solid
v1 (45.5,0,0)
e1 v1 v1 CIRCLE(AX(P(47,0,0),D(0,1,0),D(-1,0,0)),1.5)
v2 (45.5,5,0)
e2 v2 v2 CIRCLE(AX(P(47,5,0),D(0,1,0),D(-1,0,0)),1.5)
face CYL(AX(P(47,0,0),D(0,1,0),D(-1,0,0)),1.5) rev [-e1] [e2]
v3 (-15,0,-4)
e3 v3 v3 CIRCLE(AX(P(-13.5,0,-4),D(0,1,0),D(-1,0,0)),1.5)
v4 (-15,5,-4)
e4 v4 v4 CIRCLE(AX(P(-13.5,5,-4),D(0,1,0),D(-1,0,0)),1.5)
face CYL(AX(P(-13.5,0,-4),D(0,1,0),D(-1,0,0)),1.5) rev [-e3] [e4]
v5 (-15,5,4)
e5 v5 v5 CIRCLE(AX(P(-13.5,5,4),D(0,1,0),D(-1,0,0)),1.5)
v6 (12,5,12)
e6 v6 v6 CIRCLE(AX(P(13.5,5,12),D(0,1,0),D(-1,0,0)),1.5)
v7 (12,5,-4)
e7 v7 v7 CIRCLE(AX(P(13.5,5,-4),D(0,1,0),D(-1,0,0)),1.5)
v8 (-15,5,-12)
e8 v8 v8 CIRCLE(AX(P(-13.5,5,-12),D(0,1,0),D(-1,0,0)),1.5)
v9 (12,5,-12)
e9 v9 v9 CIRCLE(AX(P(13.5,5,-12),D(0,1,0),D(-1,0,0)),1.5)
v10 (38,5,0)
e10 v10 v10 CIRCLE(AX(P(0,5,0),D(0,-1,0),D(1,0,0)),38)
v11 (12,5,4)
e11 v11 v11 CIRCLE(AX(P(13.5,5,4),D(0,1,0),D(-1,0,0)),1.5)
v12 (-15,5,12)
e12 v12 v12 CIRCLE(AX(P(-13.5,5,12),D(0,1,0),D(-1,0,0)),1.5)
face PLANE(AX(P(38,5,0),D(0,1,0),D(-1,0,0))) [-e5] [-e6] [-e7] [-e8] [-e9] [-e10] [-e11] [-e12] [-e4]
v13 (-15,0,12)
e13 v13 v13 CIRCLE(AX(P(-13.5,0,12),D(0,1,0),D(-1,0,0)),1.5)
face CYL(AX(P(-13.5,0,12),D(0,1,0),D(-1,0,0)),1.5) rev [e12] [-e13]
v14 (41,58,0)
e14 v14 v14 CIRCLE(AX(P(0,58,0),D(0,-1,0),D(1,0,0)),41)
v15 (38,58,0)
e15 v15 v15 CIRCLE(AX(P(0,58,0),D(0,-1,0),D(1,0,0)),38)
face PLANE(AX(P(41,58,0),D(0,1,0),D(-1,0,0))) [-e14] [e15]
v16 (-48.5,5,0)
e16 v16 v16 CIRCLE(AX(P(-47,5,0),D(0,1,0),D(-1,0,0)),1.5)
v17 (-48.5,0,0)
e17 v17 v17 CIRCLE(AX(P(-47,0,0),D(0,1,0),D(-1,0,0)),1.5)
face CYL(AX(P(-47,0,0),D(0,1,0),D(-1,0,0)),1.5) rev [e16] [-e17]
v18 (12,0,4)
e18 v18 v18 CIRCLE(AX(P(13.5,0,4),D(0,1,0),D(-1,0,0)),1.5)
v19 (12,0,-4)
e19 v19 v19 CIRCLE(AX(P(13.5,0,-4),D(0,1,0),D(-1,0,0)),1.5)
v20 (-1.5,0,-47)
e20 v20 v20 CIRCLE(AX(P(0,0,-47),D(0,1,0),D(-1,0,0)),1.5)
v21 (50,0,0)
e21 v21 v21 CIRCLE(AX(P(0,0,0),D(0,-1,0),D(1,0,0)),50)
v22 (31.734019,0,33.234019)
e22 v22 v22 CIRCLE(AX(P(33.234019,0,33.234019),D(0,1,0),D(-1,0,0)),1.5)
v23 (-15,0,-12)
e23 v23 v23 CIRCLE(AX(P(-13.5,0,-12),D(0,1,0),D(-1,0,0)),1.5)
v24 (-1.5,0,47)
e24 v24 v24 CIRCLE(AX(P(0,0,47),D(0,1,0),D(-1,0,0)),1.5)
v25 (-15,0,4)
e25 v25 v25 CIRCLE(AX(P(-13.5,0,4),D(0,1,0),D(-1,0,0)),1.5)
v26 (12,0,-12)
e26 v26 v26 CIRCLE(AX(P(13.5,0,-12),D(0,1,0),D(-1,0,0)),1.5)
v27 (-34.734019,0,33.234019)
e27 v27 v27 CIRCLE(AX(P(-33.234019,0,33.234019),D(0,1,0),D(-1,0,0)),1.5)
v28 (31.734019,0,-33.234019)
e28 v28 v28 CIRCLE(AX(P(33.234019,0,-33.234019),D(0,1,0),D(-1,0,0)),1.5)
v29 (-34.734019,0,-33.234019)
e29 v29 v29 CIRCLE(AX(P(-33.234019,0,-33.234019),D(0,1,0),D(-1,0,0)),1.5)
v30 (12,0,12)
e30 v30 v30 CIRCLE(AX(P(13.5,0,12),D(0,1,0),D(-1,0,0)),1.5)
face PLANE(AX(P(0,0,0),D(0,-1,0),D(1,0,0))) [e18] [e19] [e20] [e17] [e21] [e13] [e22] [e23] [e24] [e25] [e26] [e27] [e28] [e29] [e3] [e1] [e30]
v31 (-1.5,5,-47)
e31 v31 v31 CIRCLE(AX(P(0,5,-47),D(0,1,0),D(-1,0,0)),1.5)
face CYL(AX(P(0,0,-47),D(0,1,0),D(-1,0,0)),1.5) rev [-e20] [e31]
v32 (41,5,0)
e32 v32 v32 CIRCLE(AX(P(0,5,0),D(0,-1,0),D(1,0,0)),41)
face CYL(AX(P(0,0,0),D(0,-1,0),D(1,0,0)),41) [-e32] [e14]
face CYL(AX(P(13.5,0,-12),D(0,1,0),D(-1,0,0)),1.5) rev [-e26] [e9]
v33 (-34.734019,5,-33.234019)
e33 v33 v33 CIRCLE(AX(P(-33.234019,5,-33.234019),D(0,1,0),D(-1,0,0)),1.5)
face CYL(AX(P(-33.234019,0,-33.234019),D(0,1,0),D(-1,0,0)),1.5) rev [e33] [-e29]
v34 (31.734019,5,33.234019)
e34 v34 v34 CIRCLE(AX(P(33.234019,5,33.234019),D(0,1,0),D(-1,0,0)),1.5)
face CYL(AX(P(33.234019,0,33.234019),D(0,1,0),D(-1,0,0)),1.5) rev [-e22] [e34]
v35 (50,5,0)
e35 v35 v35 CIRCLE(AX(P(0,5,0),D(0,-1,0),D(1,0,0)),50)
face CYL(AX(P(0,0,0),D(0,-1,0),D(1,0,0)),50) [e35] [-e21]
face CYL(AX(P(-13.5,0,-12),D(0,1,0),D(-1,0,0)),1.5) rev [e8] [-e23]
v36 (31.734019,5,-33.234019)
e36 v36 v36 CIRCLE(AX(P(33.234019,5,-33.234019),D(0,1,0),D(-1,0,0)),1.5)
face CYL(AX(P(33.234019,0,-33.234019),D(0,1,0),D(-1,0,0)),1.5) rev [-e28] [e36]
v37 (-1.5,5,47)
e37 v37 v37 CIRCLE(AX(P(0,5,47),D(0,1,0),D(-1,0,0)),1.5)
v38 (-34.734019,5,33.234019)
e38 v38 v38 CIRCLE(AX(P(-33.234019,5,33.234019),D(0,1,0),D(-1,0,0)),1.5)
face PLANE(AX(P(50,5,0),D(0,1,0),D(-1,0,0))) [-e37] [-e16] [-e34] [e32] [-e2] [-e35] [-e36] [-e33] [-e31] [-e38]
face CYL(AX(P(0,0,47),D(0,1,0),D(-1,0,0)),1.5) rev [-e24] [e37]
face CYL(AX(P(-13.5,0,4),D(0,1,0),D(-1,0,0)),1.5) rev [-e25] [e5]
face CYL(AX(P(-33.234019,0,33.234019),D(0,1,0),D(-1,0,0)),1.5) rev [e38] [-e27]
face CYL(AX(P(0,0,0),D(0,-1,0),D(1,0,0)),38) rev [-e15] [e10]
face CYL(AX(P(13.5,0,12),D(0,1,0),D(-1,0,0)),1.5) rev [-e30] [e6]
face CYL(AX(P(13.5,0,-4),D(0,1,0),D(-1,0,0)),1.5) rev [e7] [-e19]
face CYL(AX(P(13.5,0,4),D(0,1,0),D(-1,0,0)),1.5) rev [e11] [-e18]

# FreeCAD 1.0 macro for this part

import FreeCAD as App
import Part
import Sketcher
from FreeCAD import Vector

doc = App.newDocument("Part")
body = doc.addObject("PartDesign::Body", "Body")

sketch1 = body.newObject("Sketcher::SketchObject", "Sketch")
sketch1.AttachmentSupport = (doc.getObject("XY_Plane"), [""])
sketch1.MapMode = "FlatFace"
sketch1.addGeometry([
    Part.LineSegment(Vector(0, 5, 0), Vector(0, 0, 0)),
    Part.LineSegment(Vector(0, 0, 0), Vector(50, 0, 0)),
    Part.LineSegment(Vector(50, 0, 0), Vector(50, 5, 0)),
    Part.LineSegment(Vector(50, 5, 0), Vector(41, 5, 0)),
    Part.LineSegment(Vector(41, 5, 0), Vector(41, 58, 0)),
    Part.LineSegment(Vector(41, 58, 0), Vector(38, 58, 0)),
    Part.LineSegment(Vector(38, 58, 0), Vector(38, 5, 0)),
    Part.LineSegment(Vector(38, 5, 0), Vector(0, 5, 0)),
], False)
sketch1.addConstraint([
    Sketcher.Constraint("Coincident", 0, 2, 1, 1),
    Sketcher.Constraint("Coincident", 1, 2, 2, 1),
    Sketcher.Constraint("Coincident", 2, 2, 3, 1),
    Sketcher.Constraint("Coincident", 3, 2, 4, 1),
    Sketcher.Constraint("Coincident", 4, 2, 5, 1),
    Sketcher.Constraint("Coincident", 5, 2, 6, 1),
    Sketcher.Constraint("Coincident", 6, 2, 7, 1),
    Sketcher.Constraint("Coincident", 7, 2, 0, 1),
    Sketcher.Constraint("Vertical", 0),
    Sketcher.Constraint("Horizontal", 1),
    Sketcher.Constraint("Vertical", 2),
    Sketcher.Constraint("Horizontal", 3),
    Sketcher.Constraint("Vertical", 4),
    Sketcher.Constraint("Horizontal", 5),
    Sketcher.Constraint("Vertical", 6),
    Sketcher.Constraint("Horizontal", 7),
    Sketcher.Constraint("Coincident", 0, 2, -1, 1),
    Sketcher.Constraint("Horizontal", 3, 2, 6, 2),
    Sketcher.Constraint("DistanceX", 1, 1, 1, 2, 50.0),
    Sketcher.Constraint("DistanceX", 3, 2, 3, 1, 9.0),
    Sketcher.Constraint("DistanceX", 5, 2, 5, 1, 3.0),
    Sketcher.Constraint("DistanceY", 0, 2, 0, 1, 5.0),
    Sketcher.Constraint("DistanceY", 4, 1, 4, 2, 53.0),
])
revolution = body.newObject("PartDesign::Revolution", "Revolution")
revolution.Profile = sketch1
revolution.ReferenceAxis = (sketch1, ["V_Axis"])
revolution.Angle = 360

sketch2 = body.newObject("Sketcher::SketchObject", "Sketch001")
sketch2.AttachmentSupport = (doc.getObject("XZ_Plane"), [""])
sketch2.MapMode = "FlatFace"
sketch2.AttachmentOffset = App.Placement(Vector(0, 0, -5), App.Rotation())
sketch2.addGeometry([
    Part.Circle(Vector(-13.5, -4, 0), Vector(0, 0, 1), 1.5),
    Part.Circle(Vector(13.5, -4, 0), Vector(0, 0, 1), 1.5),
    Part.Circle(Vector(-13.5, 4, 0), Vector(0, 0, 1), 1.5),
    Part.Circle(Vector(-13.5, 12, 0), Vector(0, 0, 1), 1.5),
    Part.Circle(Vector(13.5, 4, 0), Vector(0, 0, 1), 1.5),
    Part.Circle(Vector(13.5, 12, 0), Vector(0, 0, 1), 1.5),
    Part.Circle(Vector(-13.5, -12, 0), Vector(0, 0, 1), 1.5),
    Part.Circle(Vector(13.5, -12, 0), Vector(0, 0, 1), 1.5),
    Part.Circle(Vector(0, 47, 0), Vector(0, 0, 1), 1.5),
    Part.Circle(Vector(-33.234019, 33.234019, 0), Vector(0, 0, 1), 1.5),
    Part.Circle(Vector(-47, 0, 0), Vector(0, 0, 1), 1.5),
    Part.Circle(Vector(-33.234019, -33.234019, 0), Vector(0, 0, 1), 1.5),
    Part.Circle(Vector(0, -47, 0), Vector(0, 0, 1), 1.5),
    Part.Circle(Vector(33.234019, -33.234019, 0), Vector(0, 0, 1), 1.5),
    Part.Circle(Vector(47, 0, 0), Vector(0, 0, 1), 1.5),
    Part.Circle(Vector(33.234019, 33.234019, 0), Vector(0, 0, 1), 1.5),
], False)
sketch2.addConstraint([
    Sketcher.Constraint("Equal", 0, 1),
    Sketcher.Constraint("Equal", 1, 2),
    Sketcher.Constraint("Equal", 2, 3),
    Sketcher.Constraint("Equal", 3, 4),
    Sketcher.Constraint("Equal", 4, 5),
    Sketcher.Constraint("Equal", 5, 6),
    Sketcher.Constraint("Equal", 6, 7),
    Sketcher.Constraint("Equal", 7, 8),
    Sketcher.Constraint("Equal", 8, 9),
    Sketcher.Constraint("Equal", 9, 10),
    Sketcher.Constraint("Equal", 10, 11),
    Sketcher.Constraint("Equal", 11, 12),
    Sketcher.Constraint("Equal", 12, 13),
    Sketcher.Constraint("Equal", 13, 14),
    Sketcher.Constraint("Equal", 14, 15),
    Sketcher.Constraint("Symmetric", 1, 3, 2, 3, -1, 1),
    Sketcher.Constraint("Symmetric", 0, 3, 4, 3, -1, 1),
    Sketcher.Constraint("Symmetric", 5, 3, 6, 3, -1, 1),
    Sketcher.Constraint("Symmetric", 3, 3, 7, 3, -1, 1),
    Sketcher.Constraint("Symmetric", 8, 3, 12, 3, -1, 1),
    Sketcher.Constraint("Symmetric", 9, 3, 13, 3, -1, 1),
    Sketcher.Constraint("Symmetric", 10, 3, 14, 3, -1, 1),
    Sketcher.Constraint("Symmetric", 11, 3, 15, 3, -1, 1),
    Sketcher.Constraint("Symmetric", 0, 3, 1, 3, -2),
    Sketcher.Constraint("Symmetric", 3, 3, 5, 3, -2),
    Sketcher.Constraint("Symmetric", 11, 3, 13, 3, -2),
    Sketcher.Constraint("PointOnObject", 8, 3, -2),
    Sketcher.Constraint("PointOnObject", 10, 3, -1),
    Sketcher.Constraint("Vertical", 2, 3, 3, 3),
    Sketcher.Constraint("Diameter", 0, 3.0),
    Sketcher.Constraint("DistanceY", 0, 3, -1, 1, 4.0),
    Sketcher.Constraint("DistanceY", -1, 1, 3, 3, 12.0),
    Sketcher.Constraint("DistanceY", -1, 1, 8, 3, 47.0),
    Sketcher.Constraint("DistanceX", 10, 3, -1, 1, 47.0),
    Sketcher.Constraint("DistanceX", 0, 3, 1, 3, 27.0),
    Sketcher.Constraint("DistanceX", 9, 3, -1, 1, 33.234019),
    Sketcher.Constraint("DistanceY", -1, 1, 9, 3, 33.234019),
])
pocket1 = body.newObject("PartDesign::Pocket", "Pocket")
pocket1.Profile = sketch2
pocket1.Type = "ThroughAll"
pocket1.Reversed = True

doc.recompute()
